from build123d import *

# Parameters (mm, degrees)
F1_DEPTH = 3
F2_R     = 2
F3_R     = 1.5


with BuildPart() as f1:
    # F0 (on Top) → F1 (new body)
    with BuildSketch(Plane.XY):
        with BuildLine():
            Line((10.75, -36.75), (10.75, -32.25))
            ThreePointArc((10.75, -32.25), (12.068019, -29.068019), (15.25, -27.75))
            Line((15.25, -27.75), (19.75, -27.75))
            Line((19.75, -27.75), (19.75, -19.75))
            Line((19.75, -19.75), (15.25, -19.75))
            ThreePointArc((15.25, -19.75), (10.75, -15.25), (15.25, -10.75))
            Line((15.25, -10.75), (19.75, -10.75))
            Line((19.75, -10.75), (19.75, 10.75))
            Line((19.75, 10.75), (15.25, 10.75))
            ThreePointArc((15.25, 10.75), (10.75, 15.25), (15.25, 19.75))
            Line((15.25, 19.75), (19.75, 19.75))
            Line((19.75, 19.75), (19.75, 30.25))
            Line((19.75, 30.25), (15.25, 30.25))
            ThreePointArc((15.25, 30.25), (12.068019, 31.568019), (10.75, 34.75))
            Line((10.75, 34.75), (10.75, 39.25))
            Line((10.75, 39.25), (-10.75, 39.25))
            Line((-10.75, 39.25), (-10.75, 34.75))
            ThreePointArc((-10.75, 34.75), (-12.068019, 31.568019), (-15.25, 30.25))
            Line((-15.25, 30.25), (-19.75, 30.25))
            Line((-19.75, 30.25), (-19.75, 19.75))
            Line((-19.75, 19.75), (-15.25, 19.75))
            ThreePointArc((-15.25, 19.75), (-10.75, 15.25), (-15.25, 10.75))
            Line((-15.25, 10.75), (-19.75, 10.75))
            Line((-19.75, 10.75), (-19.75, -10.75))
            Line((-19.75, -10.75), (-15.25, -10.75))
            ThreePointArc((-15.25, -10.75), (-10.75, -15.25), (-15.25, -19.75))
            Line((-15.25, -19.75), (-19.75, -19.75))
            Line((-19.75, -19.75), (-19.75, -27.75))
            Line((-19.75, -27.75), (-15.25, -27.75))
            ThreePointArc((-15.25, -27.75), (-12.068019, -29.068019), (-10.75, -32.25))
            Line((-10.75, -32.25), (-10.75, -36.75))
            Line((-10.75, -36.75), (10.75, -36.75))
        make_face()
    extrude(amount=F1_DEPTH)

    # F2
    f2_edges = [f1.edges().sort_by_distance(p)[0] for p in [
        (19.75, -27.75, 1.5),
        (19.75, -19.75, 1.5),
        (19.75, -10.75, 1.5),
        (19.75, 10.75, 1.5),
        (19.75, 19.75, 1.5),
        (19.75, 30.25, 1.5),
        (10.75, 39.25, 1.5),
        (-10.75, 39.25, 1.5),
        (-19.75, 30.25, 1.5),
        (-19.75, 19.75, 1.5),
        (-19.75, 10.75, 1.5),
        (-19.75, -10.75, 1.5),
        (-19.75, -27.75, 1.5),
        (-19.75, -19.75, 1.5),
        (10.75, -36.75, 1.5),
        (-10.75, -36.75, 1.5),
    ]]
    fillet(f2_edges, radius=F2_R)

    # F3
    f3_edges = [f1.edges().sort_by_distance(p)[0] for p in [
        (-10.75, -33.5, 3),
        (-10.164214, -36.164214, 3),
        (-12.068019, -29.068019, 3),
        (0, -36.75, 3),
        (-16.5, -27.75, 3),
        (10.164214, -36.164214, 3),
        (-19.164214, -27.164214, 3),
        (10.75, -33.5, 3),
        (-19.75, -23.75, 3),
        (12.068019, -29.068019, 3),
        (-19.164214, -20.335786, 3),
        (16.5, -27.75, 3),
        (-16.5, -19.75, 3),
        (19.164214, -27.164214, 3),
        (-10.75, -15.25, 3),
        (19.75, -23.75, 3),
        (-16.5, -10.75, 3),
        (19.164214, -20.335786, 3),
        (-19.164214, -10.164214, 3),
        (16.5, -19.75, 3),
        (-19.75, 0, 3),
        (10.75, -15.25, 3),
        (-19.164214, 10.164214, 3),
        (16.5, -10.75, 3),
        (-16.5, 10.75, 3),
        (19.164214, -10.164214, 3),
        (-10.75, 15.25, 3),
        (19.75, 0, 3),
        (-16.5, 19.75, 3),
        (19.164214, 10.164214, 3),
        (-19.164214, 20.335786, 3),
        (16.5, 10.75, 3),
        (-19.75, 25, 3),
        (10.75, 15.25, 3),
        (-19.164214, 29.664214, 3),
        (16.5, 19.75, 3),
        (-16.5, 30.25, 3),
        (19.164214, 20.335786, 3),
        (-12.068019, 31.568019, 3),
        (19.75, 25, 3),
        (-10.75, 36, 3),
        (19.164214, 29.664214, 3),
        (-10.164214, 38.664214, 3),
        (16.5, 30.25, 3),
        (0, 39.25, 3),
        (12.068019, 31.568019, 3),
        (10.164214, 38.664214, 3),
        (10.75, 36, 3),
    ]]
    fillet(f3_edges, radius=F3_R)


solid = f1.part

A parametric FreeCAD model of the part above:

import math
import FreeCAD as App
import Part
import Sketcher
from FreeCAD import Vector


def edges_at(feature, points):
    """Names of the edges that pass closest to the given points."""
    edges = feature.Shape.Edges
    near = lambda p: min(range(len(edges)), key=lambda i: edges[i].distToShape(Part.Vertex(*p))[0])
    return sorted({f"Edge{near(p) + 1}" for p in points})

doc = App.newDocument("Part")
body = doc.addObject("PartDesign::Body", "Body")

sketch1 = body.newObject("Sketcher::SketchObject", "Sketch")
sketch1.AttachmentSupport = (doc.getObject("XY_Plane"), [""])
sketch1.MapMode = "FlatFace"
sketch1.addGeometry(Part.LineSegment(Vector(10.8, -36.8, 0), Vector(10.8, -32.2, 0)), False)
sketch1.addGeometry(Part.ArcOfCircle(Part.Circle(Vector(15.2, -32.2, 0), Vector(0, 0, 1), 4.5), math.radians(90), math.radians(180)), False)
sketch1.addGeometry(Part.LineSegment(Vector(15.2, -27.8, 0), Vector(19.8, -27.8, 0)), False)
sketch1.addGeometry(Part.LineSegment(Vector(19.8, -27.8, 0), Vector(19.8, -19.8, 0)), False)
sketch1.addGeometry(Part.LineSegment(Vector(19.8, -19.8, 0), Vector(15.2, -19.8, 0)), False)
sketch1.addGeometry(Part.ArcOfCircle(Part.Circle(Vector(15.2, -15.2, 0), Vector(0, 0, 1), 4.5), math.radians(90), math.radians(270)), False)
sketch1.addGeometry(Part.LineSegment(Vector(15.2, -10.8, 0), Vector(19.8, -10.8, 0)), False)
sketch1.addGeometry(Part.LineSegment(Vector(19.8, -10.8, 0), Vector(19.8, 10.8, 0)), False)
sketch1.addGeometry(Part.LineSegment(Vector(19.8, 10.8, 0), Vector(15.2, 10.8, 0)), False)
sketch1.addGeometry(Part.ArcOfCircle(Part.Circle(Vector(15.2, 15.2, 0), Vector(0, 0, 1), 4.5), math.radians(90), math.radians(270)), False)
sketch1.addGeometry(Part.LineSegment(Vector(15.2, 19.8, 0), Vector(19.8, 19.8, 0)), False)
sketch1.addGeometry(Part.LineSegment(Vector(19.8, 19.8, 0), Vector(19.8, 30.2, 0)), False)
sketch1.addGeometry(Part.LineSegment(Vector(19.8, 30.2, 0), Vector(15.2, 30.2, 0)), False)
sketch1.addGeometry(Part.ArcOfCircle(Part.Circle(Vector(15.2, 34.7, 0), Vector(0, 0, 1), 4.5), math.radians(180), math.radians(270)), False)
sketch1.addGeometry(Part.LineSegment(Vector(10.8, 34.8, 0), Vector(10.8, 39.2, 0)), False)
sketch1.addGeometry(Part.LineSegment(Vector(10.8, 39.2, 0), Vector(-10.8, 39.2, 0)), False)
sketch1.addGeometry(Part.LineSegment(Vector(-10.8, 39.2, 0), Vector(-10.8, 34.8, 0)), False)
sketch1.addGeometry(Part.ArcOfCircle(Part.Circle(Vector(-15.2, 34.7, 0), Vector(0, 0, 1), 4.5), math.radians(-90), math.radians(0)), False)
sketch1.addGeometry(Part.LineSegment(Vector(-15.2, 30.2, 0), Vector(-19.8, 30.2, 0)), False)
sketch1.addGeometry(Part.LineSegment(Vector(-19.8, 30.2, 0), Vector(-19.8, 19.8, 0)), False)
sketch1.addGeometry(Part.LineSegment(Vector(-19.8, 19.8, 0), Vector(-15.2, 19.8, 0)), False)
sketch1.addGeometry(Part.ArcOfCircle(Part.Circle(Vector(-15.2, 15.2, 0), Vector(0, 0, 1), 4.5), math.radians(-90), math.radians(90)), False)
sketch1.addGeometry(Part.LineSegment(Vector(-15.2, 10.8, 0), Vector(-19.8, 10.8, 0)), False)
sketch1.addGeometry(Part.LineSegment(Vector(-19.8, 10.8, 0), Vector(-19.8, -10.8, 0)), False)
sketch1.addGeometry(Part.LineSegment(Vector(-19.8, -10.8, 0), Vector(-15.2, -10.8, 0)), False)
sketch1.addGeometry(Part.ArcOfCircle(Part.Circle(Vector(-15.2, -15.2, 0), Vector(0, 0, 1), 4.5), math.radians(-90), math.radians(90)), False)
sketch1.addGeometry(Part.LineSegment(Vector(-15.2, -19.8, 0), Vector(-19.8, -19.8, 0)), False)
sketch1.addGeometry(Part.LineSegment(Vector(-19.8, -19.8, 0), Vector(-19.8, -27.8, 0)), False)
sketch1.addGeometry(Part.LineSegment(Vector(-19.8, -27.8, 0), Vector(-15.2, -27.8, 0)), False)
sketch1.addGeometry(Part.ArcOfCircle(Part.Circle(Vector(-15.2, -32.2, 0), Vector(0, 0, 1), 4.5), math.radians(0), math.radians(90)), False)
sketch1.addGeometry(Part.LineSegment(Vector(-10.8, -32.2, 0), Vector(-10.8, -36.8, 0)), False)
sketch1.addGeometry(Part.LineSegment(Vector(-10.8, -36.8, 0), Vector(10.8, -36.8, 0)), False)
sketch1.addConstraint(Sketcher.Constraint("Tangent", 0, 2, 1, 2))
sketch1.addConstraint(Sketcher.Constraint("Tangent", 1, 1, 2, 1))
sketch1.addConstraint(Sketcher.Constraint("Coincident", 2, 2, 3, 1))
sketch1.addConstraint(Sketcher.Constraint("Coincident", 3, 2, 4, 1))
sketch1.addConstraint(Sketcher.Constraint("Tangent", 4, 2, 5, 2))
sketch1.addConstraint(Sketcher.Constraint("Tangent", 5, 1, 6, 1))
sketch1.addConstraint(Sketcher.Constraint("Coincident", 6, 2, 7, 1))
sketch1.addConstraint(Sketcher.Constraint("Coincident", 7, 2, 8, 1))
sketch1.addConstraint(Sketcher.Constraint("Tangent", 8, 2, 9, 2))
sketch1.addConstraint(Sketcher.Constraint("Tangent", 9, 1, 10, 1))
sketch1.addConstraint(Sketcher.Constraint("Coincident", 10, 2, 11, 1))
sketch1.addConstraint(Sketcher.Constraint("Coincident", 11, 2, 12, 1))
sketch1.addConstraint(Sketcher.Constraint("Tangent", 12, 2, 13, 2))
sketch1.addConstraint(Sketcher.Constraint("Tangent", 13, 1, 14, 1))
sketch1.addConstraint(Sketcher.Constraint("Coincident", 14, 2, 15, 1))
sketch1.addConstraint(Sketcher.Constraint("Coincident", 15, 2, 16, 1))
sketch1.addConstraint(Sketcher.Constraint("Tangent", 16, 2, 17, 2))
sketch1.addConstraint(Sketcher.Constraint("Tangent", 17, 1, 18, 1))
sketch1.addConstraint(Sketcher.Constraint("Coincident", 18, 2, 19, 1))
sketch1.addConstraint(Sketcher.Constraint("Coincident", 19, 2, 20, 1))
sketch1.addConstraint(Sketcher.Constraint("Tangent", 20, 2, 21, 2))
sketch1.addConstraint(Sketcher.Constraint("Tangent", 21, 1, 22, 1))
sketch1.addConstraint(Sketcher.Constraint("Coincident", 22, 2, 23, 1))
sketch1.addConstraint(Sketcher.Constraint("Coincident", 23, 2, 24, 1))
sketch1.addConstraint(Sketcher.Constraint("Tangent", 24, 2, 25, 2))
sketch1.addConstraint(Sketcher.Constraint("Tangent", 25, 1, 26, 1))
sketch1.addConstraint(Sketcher.Constraint("Coincident", 26, 2, 27, 1))
sketch1.addConstraint(Sketcher.Constraint("Coincident", 27, 2, 28, 1))
sketch1.addConstraint(Sketcher.Constraint("Tangent", 28, 2, 29, 2))
sketch1.addConstraint(Sketcher.Constraint("Tangent", 29, 1, 30, 1))
sketch1.addConstraint(Sketcher.Constraint("Coincident", 30, 2, 31, 1))
sketch1.addConstraint(Sketcher.Constraint("Coincident", 31, 2, 0, 1))
sketch1.addConstraint(Sketcher.Constraint("Vertical", 0))
sketch1.addConstraint(Sketcher.Constraint("Horizontal", 2))
sketch1.addConstraint(Sketcher.Constraint("Vertical", 3))
sketch1.addConstraint(Sketcher.Constraint("Horizontal", 4))
sketch1.addConstraint(Sketcher.Constraint("Horizontal", 6))
sketch1.addConstraint(Sketcher.Constraint("Vertical", 7))
sketch1.addConstraint(Sketcher.Constraint("Horizontal", 8))
sketch1.addConstraint(Sketcher.Constraint("Horizontal", 10))
sketch1.addConstraint(Sketcher.Constraint("Vertical", 11))
sketch1.addConstraint(Sketcher.Constraint("Horizontal", 12))
sketch1.addConstraint(Sketcher.Constraint("Vertical", 14))
sketch1.addConstraint(Sketcher.Constraint("Horizontal", 15))
sketch1.addConstraint(Sketcher.Constraint("Vertical", 16))
sketch1.addConstraint(Sketcher.Constraint("Horizontal", 18))
sketch1.addConstraint(Sketcher.Constraint("Vertical", 19))
sketch1.addConstraint(Sketcher.Constraint("Horizontal", 20))
sketch1.addConstraint(Sketcher.Constraint("Horizontal", 22))
sketch1.addConstraint(Sketcher.Constraint("Vertical", 23))
sketch1.addConstraint(Sketcher.Constraint("Horizontal", 24))
sketch1.addConstraint(Sketcher.Constraint("Horizontal", 26))
sketch1.addConstraint(Sketcher.Constraint("Vertical", 27))
sketch1.addConstraint(Sketcher.Constraint("Horizontal", 28))
sketch1.addConstraint(Sketcher.Constraint("Vertical", 30))
sketch1.addConstraint(Sketcher.Constraint("Horizontal", 31))
sketch1.addConstraint(Sketcher.Constraint("Equal", 1, 5))
sketch1.addConstraint(Sketcher.Constraint("Equal", 5, 9))
sketch1.addConstraint(Sketcher.Constraint("Equal", 9, 13))
sketch1.addConstraint(Sketcher.Constraint("Equal", 13, 17))
sketch1.addConstraint(Sketcher.Constraint("Equal", 17, 21))
sketch1.addConstraint(Sketcher.Constraint("Equal", 21, 25))
sketch1.addConstraint(Sketcher.Constraint("Equal", 25, 29))
sketch1.addConstraint(Sketcher.Constraint("Symmetric", 5, 3, 21, 3, -1, 1))
sketch1.addConstraint(Sketcher.Constraint("Symmetric", 9, 3, 25, 3, -1, 1))
sketch1.addConstraint(Sketcher.Constraint("Symmetric", 13, 3, 17, 3, -2))
sketch1.addConstraint(Sketcher.Constraint("Symmetric", 9, 3, 21, 3, -2))
sketch1.addConstraint(Sketcher.Constraint("Symmetric", 1, 3, 29, 3, -2))
sketch1.addConstraint(Sketcher.Constraint("Vertical", 1, 3, 5, 3))
sketch1.addConstraint(Sketcher.Constraint("Vertical", 9, 3, 13, 3))
sketch1.addConstraint(Sketcher.Constraint("Vertical", 3, 2, 6, 2))
sketch1.addConstraint(Sketcher.Constraint("Vertical", 7, 2, 10, 2))
sketch1.addConstraint(Sketcher.Constraint("Vertical", 19, 2, 22, 2))
sketch1.addConstraint(Sketcher.Constraint("Vertical", 23, 2, 26, 2))
sketch1.addConstraint(Sketcher.Constraint("Equal", 12, 18))
sketch1.addConstraint(Sketcher.Constraint("Equal", 28, 0))
sketch1.addConstraint(Sketcher.Constraint("Equal", 31, 7))
sketch1.addConstraint(Sketcher.Constraint("Equal", 0, 14))
sketch1.addConstraint(Sketcher.Constraint("Radius", 1, 4.499998))
sketch1.addConstraint(Sketcher.Constraint("DistanceY", 3, 1, 3, 2, 8.0))
sketch1.addConstraint(Sketcher.Constraint("DistanceX", 2, 1, 2, 2, 4.5))
sketch1.addConstraint(Sketcher.Constraint("DistanceX", 15, 2, 15, 1, 21.5))
sketch1.addConstraint(Sketcher.Constraint("DistanceY", 11, 1, 11, 2, 10.5))
pad1 = body.newObject("PartDesign::Pad", "Pad")
pad1.Profile = sketch1
pad1.Length = 3
doc.recompute()

fillet = body.newObject("PartDesign::Fillet", "Fillet")
fillet.Base = (pad1, edges_at(pad1, [
    (19.75, -27.75, 1.5),
    (19.75, -19.75, 1.5),
    (19.75, -10.75, 1.5),
    (19.75, 10.75, 1.5),
    (19.75, 19.75, 1.5),
    (19.75, 30.25, 1.5),
    (10.75, 39.25, 1.5),
    (-10.75, 39.25, 1.5),
    (-19.75, 30.25, 1.5),
    (-19.75, 19.75, 1.5),
    (-19.75, 10.75, 1.5),
    (-19.75, -10.75, 1.5),
    (-19.75, -27.75, 1.5),
    (-19.75, -19.75, 1.5),
    (10.75, -36.75, 1.5),
    (-10.75, -36.75, 1.5),
]))
fillet.Radius = 2
doc.recompute()

fillet2 = body.newObject("PartDesign::Fillet", "Fillet001")
fillet2.Base = (fillet, edges_at(fillet, [
    (-10.75, -33.5, 3),
    (-10.164, -36.164, 3),
    (-12.068, -29.068, 3),
    (0, -36.75, 3),
    (-16.5, -27.75, 3),
    (10.164, -36.164, 3),
    (-19.164, -27.164, 3),
    (10.75, -33.5, 3),
    (-19.75, -23.75, 3),
    (12.068, -29.068, 3),
    (-19.164, -20.336, 3),
    (16.5, -27.75, 3),
    (-16.5, -19.75, 3),
    (19.164, -27.164, 3),
    (-10.75, -15.25, 3),
    (19.75, -23.75, 3),
    (-16.5, -10.75, 3),
    (19.164, -20.336, 3),
    (-19.164, -10.164, 3),
    (16.5, -19.75, 3),
    (-19.75, 0, 3),
    (10.75, -15.25, 3),
    (-19.164, 10.164, 3),
    (16.5, -10.75, 3),
    (-16.5, 10.75, 3),
    (19.164, -10.164, 3),
    (-10.75, 15.25, 3),
    (19.75, 0, 3),
    (-16.5, 19.75, 3),
    (19.164, 10.164, 3),
    (-19.164, 20.336, 3),
    (16.5, 10.75, 3),
    (-19.75, 25, 3),
    (10.75, 15.25, 3),
    (-19.164, 29.664, 3),
    (16.5, 19.75, 3),
    (-16.5, 30.25, 3),
    (19.164, 20.336, 3),
    (-12.068, 31.568, 3),
    (19.75, 25, 3),
    (-10.75, 36, 3),
    (19.164, 29.664, 3),
    (-10.164, 38.664, 3),
    (16.5, 30.25, 3),
    (0, 39.25, 3),
    (12.068, 31.568, 3),
    (10.164, 38.664, 3),
    (10.75, 36, 3),
]))
fillet2.Radius = 1.5

doc.recompute()
